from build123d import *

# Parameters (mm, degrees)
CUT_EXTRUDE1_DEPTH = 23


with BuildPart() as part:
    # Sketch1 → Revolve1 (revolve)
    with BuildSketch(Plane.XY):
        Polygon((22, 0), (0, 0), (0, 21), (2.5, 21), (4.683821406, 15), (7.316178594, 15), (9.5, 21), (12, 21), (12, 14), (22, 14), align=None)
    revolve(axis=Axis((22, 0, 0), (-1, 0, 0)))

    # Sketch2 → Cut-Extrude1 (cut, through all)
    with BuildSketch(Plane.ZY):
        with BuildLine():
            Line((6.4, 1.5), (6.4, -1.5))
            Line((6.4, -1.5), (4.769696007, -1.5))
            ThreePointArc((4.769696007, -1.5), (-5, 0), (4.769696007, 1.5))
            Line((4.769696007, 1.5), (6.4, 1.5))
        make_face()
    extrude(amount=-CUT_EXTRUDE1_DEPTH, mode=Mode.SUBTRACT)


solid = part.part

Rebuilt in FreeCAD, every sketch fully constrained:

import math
import FreeCAD as App
import Part
import Sketcher

V = App.Vector
Q = App.Units.Quantity

doc = App.newDocument("Part")
body = doc.addObject("PartDesign::Body", "Body")

sketch1 = doc.addObject("Sketcher::SketchObject", "Sketch")
body.addObject(sketch1)
sketch1.AttachmentSupport = (doc.XY_Plane, [""])
sketch1.MapMode = "FlatFace"
sketch1.addGeometry(Part.LineSegment(V(0, 0, 0), V(22, 0, 0)), False)
sketch1.addGeometry(Part.LineSegment(V(22, 0, 0), V(22, 14, 0)), False)
sketch1.addGeometry(Part.LineSegment(V(22, 14, 0), V(12, 14, 0)), False)
sketch1.addGeometry(Part.LineSegment(V(12, 14, 0), V(12, 21, 0)), False)
sketch1.addGeometry(Part.LineSegment(V(12, 21, 0), V(9.5, 21, 0)), False)
sketch1.addGeometry(Part.LineSegment(V(9.5, 21, 0), V(7.316179, 15, 0)), False)
sketch1.addGeometry(Part.LineSegment(V(7.316179, 15, 0), V(4.683821, 15, 0)), False)
sketch1.addGeometry(Part.LineSegment(V(4.683821, 15, 0), V(2.5, 21, 0)), False)
sketch1.addGeometry(Part.LineSegment(V(2.5, 21, 0), V(0, 21, 0)), False)
sketch1.addGeometry(Part.LineSegment(V(0, 21, 0), V(0, 0, 0)), False)
sketch1.addConstraint(Sketcher.Constraint("Coincident", 0, 2, 1, 1))
sketch1.addConstraint(Sketcher.Constraint("Coincident", 1, 2, 2, 1))
sketch1.addConstraint(Sketcher.Constraint("Coincident", 2, 2, 3, 1))
sketch1.addConstraint(Sketcher.Constraint("Coincident", 3, 2, 4, 1))
sketch1.addConstraint(Sketcher.Constraint("Coincident", 4, 2, 5, 1))
sketch1.addConstraint(Sketcher.Constraint("Coincident", 5, 2, 6, 1))
sketch1.addConstraint(Sketcher.Constraint("Coincident", 6, 2, 7, 1))
sketch1.addConstraint(Sketcher.Constraint("Coincident", 7, 2, 8, 1))
sketch1.addConstraint(Sketcher.Constraint("Coincident", 8, 2, 9, 1))
sketch1.addConstraint(Sketcher.Constraint("Coincident", 9, 2, 0, 1))
sketch1.addConstraint(Sketcher.Constraint("Horizontal", 0))
sketch1.addConstraint(Sketcher.Constraint("Vertical", 1))
sketch1.addConstraint(Sketcher.Constraint("Horizontal", 2))
sketch1.addConstraint(Sketcher.Constraint("Vertical", 3))
sketch1.addConstraint(Sketcher.Constraint("Horizontal", 4))
sketch1.addConstraint(Sketcher.Constraint("Horizontal", 6))
sketch1.addConstraint(Sketcher.Constraint("Horizontal", 8))
sketch1.addConstraint(Sketcher.Constraint("Vertical", 9))
sketch1.addConstraint(Sketcher.Constraint("Coincident", 9, 2, -1, 1))
sketch1.addConstraint(Sketcher.Constraint("Horizontal", 4, 2, 7, 2))
sketch1.addConstraint(Sketcher.Constraint("Equal", 4, 8))
sketch1.addConstraint(Sketcher.Constraint("Equal", 5, 7))
sketch1.addConstraint(Sketcher.Constraint("DistanceX", 0, 1, 0, 2, Q("22 mm")))
sketch1.addConstraint(Sketcher.Constraint("DistanceX", 2, 2, 2, 1, Q("10 mm")))
sketch1.addConstraint(Sketcher.Constraint("DistanceY", 1, 1, 1, 2, Q("14 mm")))
sketch1.addConstraint(Sketcher.Constraint("DistanceY", 3, 1, 3, 2, Q("7 mm")))
sketch1.addConstraint(Sketcher.Constraint("Angle", 5, Q("-110 deg")))
sketch1.addConstraint(Sketcher.Constraint("DistanceX", 4, 2, 4, 1, Q("2.5 mm")))
sketch1.addConstraint(Sketcher.Constraint("DistanceY", -1, 1, 5, 2, Q("15 mm")))
revolution = doc.addObject("PartDesign::Revolution", "Revolution")
body.addObject(revolution)
revolution.Profile = sketch1
revolution.ReferenceAxis = (sketch1, ["H_Axis"])
revolution.Angle = 360

sketch2 = doc.addObject("Sketcher::SketchObject", "Sketch001")
body.addObject(sketch2)
sketch2.AttachmentSupport = (doc.YZ_Plane, [""])
sketch2.MapMode = "FlatFace"
sketch2.addGeometry(Part.LineSegment(V(-1.5, 6.4, 0), V(1.5, 6.4, 0)), False)
sketch2.addGeometry(Part.LineSegment(V(1.5, 6.4, 0), V(1.5, 4.769696, 0)), False)
sketch2.addGeometry(Part.ArcOfCircle(Part.Circle(V(0, 0, 0), V(0, 0, 1), 5), math.radians(107.457603), math.radians(432.542397)), False)
sketch2.addGeometry(Part.LineSegment(V(-1.5, 4.769696, 0), V(-1.5, 6.4, 0)), False)
sketch2.addConstraint(Sketcher.Constraint("Coincident", 0, 2, 1, 1))
sketch2.addConstraint(Sketcher.Constraint("Coincident", 1, 2, 2, 2))
sketch2.addConstraint(Sketcher.Constraint("Coincident", 2, 1, 3, 1))
sketch2.addConstraint(Sketcher.Constraint("Coincident", 3, 2, 0, 1))
sketch2.addConstraint(Sketcher.Constraint("Horizontal", 0))
sketch2.addConstraint(Sketcher.Constraint("Vertical", 1))
sketch2.addConstraint(Sketcher.Constraint("Vertical", 3))
sketch2.addConstraint(Sketcher.Constraint("Coincident", 2, 3, -1, 1))
sketch2.addConstraint(Sketcher.Constraint("Horizontal", 1, 2, 2, 1))
sketch2.addConstraint(Sketcher.Constraint("Radius", 2, Q("5 mm")))
sketch2.addConstraint(Sketcher.Constraint("DistanceX", 0, 1, 0, 2, Q("3 mm")))
sketch2.addConstraint(Sketcher.Constraint("DistanceY", -1, 1, 0, 2, Q("6.4 mm")))
pocket1 = doc.addObject("PartDesign::Pocket", "Pocket")
body.addObject(pocket1)
pocket1.Profile = sketch2
pocket1.Type = "ThroughAll"
pocket1.Reversed = True

doc.recompute()
